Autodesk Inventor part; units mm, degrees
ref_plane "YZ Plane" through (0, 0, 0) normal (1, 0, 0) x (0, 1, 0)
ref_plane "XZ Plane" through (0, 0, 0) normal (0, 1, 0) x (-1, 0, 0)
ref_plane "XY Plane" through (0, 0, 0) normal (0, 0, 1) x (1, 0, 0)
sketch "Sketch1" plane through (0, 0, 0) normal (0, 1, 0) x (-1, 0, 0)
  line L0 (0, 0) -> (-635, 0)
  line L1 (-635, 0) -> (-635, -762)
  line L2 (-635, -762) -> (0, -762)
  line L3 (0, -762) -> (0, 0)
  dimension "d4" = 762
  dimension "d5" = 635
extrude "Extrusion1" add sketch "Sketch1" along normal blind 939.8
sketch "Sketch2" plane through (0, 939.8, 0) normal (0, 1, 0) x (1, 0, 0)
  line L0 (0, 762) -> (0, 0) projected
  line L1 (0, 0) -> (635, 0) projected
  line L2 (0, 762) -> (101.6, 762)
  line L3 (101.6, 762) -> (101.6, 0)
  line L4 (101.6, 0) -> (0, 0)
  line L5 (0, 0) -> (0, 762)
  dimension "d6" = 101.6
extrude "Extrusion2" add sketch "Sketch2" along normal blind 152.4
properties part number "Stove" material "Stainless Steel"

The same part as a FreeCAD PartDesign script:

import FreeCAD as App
import Part
import Sketcher

V = App.Vector
Q = App.Units.Quantity

doc = App.newDocument("Part")
body = doc.addObject("PartDesign::Body", "Body")

# Sketch on XZ plane
sketch1 = doc.addObject("Sketcher::SketchObject", "Sketch")
body.addObject(sketch1)
sketch1.AttachmentSupport = (doc.XZ_Plane, [""])
sketch1.MapMode = "FlatFace"
sketch1.addGeometry([
    Part.LineSegment(V(0, -762, 0), V(0, 0, 0)),
    Part.LineSegment(V(0, 0, 0), V(635, 0, 0)),
    Part.LineSegment(V(635, 0, 0), V(635, -762, 0)),
    Part.LineSegment(V(635, -762, 0), V(0, -762, 0)),
], False)
sketch1.addConstraint([
    Sketcher.Constraint("Coincident", 0, 2, 1, 1),
    Sketcher.Constraint("Coincident", 1, 2, 2, 1),
    Sketcher.Constraint("Coincident", 2, 2, 3, 1),
    Sketcher.Constraint("Coincident", 3, 2, 0, 1),
    Sketcher.Constraint("Vertical", 0),
    Sketcher.Constraint("Horizontal", 1),
    Sketcher.Constraint("Vertical", 2),
    Sketcher.Constraint("Horizontal", 3),
    Sketcher.Constraint("Coincident", 0, 2, -1, 1),
    Sketcher.Constraint("DistanceX", 1, 1, 1, 2, Q("25 in")),
    Sketcher.Constraint("DistanceY", 0, 1, 0, 2, Q("30 in")),
])
pad1 = doc.addObject("PartDesign::Pad", "Pad")
body.addObject(pad1)
pad1.Profile = sketch1
pad1.Length = Q("37 in")
pad1.Reversed = True

# Sketch on XZ plane
sketch2 = doc.addObject("Sketcher::SketchObject", "Sketch001")
body.addObject(sketch2)
sketch2.AttachmentSupport = (doc.XZ_Plane, [""])
sketch2.MapMode = "FlatFace"
sketch2.AttachmentOffset = App.Placement(V(0, 0, -37 * 25.4), App.Rotation())
sketch2.addGeometry([
    Part.LineSegment(V(102, -762, 0), V(0, -762, 0)),
    Part.LineSegment(V(0, -762, 0), V(0, 0, 0)),
    Part.LineSegment(V(0, 0, 0), V(102, 0, 0)),
    Part.LineSegment(V(102, 0, 0), V(102, -762, 0)),
], False)
sketch2.addConstraint([
    Sketcher.Constraint("Coincident", 0, 2, 1, 1),
    Sketcher.Constraint("Coincident", 1, 2, 2, 1),
    Sketcher.Constraint("Coincident", 2, 2, 3, 1),
    Sketcher.Constraint("Coincident", 3, 2, 0, 1),
    Sketcher.Constraint("Horizontal", 0),
    Sketcher.Constraint("Vertical", 1),
    Sketcher.Constraint("Horizontal", 2),
    Sketcher.Constraint("Vertical", 3),
    Sketcher.Constraint("Coincident", 1, 2, -1, 1),
    Sketcher.Constraint("DistanceX", 0, 2, 0, 1, Q("4 in")),
    Sketcher.Constraint("DistanceY", 1, 1, 1, 2, Q("30 in")),
])
pad2 = doc.addObject("PartDesign::Pad", "Pad001")
body.addObject(pad2)
pad2.Profile = sketch2
pad2.Length = Q("6 in")
pad2.Reversed = True

doc.recompute()
